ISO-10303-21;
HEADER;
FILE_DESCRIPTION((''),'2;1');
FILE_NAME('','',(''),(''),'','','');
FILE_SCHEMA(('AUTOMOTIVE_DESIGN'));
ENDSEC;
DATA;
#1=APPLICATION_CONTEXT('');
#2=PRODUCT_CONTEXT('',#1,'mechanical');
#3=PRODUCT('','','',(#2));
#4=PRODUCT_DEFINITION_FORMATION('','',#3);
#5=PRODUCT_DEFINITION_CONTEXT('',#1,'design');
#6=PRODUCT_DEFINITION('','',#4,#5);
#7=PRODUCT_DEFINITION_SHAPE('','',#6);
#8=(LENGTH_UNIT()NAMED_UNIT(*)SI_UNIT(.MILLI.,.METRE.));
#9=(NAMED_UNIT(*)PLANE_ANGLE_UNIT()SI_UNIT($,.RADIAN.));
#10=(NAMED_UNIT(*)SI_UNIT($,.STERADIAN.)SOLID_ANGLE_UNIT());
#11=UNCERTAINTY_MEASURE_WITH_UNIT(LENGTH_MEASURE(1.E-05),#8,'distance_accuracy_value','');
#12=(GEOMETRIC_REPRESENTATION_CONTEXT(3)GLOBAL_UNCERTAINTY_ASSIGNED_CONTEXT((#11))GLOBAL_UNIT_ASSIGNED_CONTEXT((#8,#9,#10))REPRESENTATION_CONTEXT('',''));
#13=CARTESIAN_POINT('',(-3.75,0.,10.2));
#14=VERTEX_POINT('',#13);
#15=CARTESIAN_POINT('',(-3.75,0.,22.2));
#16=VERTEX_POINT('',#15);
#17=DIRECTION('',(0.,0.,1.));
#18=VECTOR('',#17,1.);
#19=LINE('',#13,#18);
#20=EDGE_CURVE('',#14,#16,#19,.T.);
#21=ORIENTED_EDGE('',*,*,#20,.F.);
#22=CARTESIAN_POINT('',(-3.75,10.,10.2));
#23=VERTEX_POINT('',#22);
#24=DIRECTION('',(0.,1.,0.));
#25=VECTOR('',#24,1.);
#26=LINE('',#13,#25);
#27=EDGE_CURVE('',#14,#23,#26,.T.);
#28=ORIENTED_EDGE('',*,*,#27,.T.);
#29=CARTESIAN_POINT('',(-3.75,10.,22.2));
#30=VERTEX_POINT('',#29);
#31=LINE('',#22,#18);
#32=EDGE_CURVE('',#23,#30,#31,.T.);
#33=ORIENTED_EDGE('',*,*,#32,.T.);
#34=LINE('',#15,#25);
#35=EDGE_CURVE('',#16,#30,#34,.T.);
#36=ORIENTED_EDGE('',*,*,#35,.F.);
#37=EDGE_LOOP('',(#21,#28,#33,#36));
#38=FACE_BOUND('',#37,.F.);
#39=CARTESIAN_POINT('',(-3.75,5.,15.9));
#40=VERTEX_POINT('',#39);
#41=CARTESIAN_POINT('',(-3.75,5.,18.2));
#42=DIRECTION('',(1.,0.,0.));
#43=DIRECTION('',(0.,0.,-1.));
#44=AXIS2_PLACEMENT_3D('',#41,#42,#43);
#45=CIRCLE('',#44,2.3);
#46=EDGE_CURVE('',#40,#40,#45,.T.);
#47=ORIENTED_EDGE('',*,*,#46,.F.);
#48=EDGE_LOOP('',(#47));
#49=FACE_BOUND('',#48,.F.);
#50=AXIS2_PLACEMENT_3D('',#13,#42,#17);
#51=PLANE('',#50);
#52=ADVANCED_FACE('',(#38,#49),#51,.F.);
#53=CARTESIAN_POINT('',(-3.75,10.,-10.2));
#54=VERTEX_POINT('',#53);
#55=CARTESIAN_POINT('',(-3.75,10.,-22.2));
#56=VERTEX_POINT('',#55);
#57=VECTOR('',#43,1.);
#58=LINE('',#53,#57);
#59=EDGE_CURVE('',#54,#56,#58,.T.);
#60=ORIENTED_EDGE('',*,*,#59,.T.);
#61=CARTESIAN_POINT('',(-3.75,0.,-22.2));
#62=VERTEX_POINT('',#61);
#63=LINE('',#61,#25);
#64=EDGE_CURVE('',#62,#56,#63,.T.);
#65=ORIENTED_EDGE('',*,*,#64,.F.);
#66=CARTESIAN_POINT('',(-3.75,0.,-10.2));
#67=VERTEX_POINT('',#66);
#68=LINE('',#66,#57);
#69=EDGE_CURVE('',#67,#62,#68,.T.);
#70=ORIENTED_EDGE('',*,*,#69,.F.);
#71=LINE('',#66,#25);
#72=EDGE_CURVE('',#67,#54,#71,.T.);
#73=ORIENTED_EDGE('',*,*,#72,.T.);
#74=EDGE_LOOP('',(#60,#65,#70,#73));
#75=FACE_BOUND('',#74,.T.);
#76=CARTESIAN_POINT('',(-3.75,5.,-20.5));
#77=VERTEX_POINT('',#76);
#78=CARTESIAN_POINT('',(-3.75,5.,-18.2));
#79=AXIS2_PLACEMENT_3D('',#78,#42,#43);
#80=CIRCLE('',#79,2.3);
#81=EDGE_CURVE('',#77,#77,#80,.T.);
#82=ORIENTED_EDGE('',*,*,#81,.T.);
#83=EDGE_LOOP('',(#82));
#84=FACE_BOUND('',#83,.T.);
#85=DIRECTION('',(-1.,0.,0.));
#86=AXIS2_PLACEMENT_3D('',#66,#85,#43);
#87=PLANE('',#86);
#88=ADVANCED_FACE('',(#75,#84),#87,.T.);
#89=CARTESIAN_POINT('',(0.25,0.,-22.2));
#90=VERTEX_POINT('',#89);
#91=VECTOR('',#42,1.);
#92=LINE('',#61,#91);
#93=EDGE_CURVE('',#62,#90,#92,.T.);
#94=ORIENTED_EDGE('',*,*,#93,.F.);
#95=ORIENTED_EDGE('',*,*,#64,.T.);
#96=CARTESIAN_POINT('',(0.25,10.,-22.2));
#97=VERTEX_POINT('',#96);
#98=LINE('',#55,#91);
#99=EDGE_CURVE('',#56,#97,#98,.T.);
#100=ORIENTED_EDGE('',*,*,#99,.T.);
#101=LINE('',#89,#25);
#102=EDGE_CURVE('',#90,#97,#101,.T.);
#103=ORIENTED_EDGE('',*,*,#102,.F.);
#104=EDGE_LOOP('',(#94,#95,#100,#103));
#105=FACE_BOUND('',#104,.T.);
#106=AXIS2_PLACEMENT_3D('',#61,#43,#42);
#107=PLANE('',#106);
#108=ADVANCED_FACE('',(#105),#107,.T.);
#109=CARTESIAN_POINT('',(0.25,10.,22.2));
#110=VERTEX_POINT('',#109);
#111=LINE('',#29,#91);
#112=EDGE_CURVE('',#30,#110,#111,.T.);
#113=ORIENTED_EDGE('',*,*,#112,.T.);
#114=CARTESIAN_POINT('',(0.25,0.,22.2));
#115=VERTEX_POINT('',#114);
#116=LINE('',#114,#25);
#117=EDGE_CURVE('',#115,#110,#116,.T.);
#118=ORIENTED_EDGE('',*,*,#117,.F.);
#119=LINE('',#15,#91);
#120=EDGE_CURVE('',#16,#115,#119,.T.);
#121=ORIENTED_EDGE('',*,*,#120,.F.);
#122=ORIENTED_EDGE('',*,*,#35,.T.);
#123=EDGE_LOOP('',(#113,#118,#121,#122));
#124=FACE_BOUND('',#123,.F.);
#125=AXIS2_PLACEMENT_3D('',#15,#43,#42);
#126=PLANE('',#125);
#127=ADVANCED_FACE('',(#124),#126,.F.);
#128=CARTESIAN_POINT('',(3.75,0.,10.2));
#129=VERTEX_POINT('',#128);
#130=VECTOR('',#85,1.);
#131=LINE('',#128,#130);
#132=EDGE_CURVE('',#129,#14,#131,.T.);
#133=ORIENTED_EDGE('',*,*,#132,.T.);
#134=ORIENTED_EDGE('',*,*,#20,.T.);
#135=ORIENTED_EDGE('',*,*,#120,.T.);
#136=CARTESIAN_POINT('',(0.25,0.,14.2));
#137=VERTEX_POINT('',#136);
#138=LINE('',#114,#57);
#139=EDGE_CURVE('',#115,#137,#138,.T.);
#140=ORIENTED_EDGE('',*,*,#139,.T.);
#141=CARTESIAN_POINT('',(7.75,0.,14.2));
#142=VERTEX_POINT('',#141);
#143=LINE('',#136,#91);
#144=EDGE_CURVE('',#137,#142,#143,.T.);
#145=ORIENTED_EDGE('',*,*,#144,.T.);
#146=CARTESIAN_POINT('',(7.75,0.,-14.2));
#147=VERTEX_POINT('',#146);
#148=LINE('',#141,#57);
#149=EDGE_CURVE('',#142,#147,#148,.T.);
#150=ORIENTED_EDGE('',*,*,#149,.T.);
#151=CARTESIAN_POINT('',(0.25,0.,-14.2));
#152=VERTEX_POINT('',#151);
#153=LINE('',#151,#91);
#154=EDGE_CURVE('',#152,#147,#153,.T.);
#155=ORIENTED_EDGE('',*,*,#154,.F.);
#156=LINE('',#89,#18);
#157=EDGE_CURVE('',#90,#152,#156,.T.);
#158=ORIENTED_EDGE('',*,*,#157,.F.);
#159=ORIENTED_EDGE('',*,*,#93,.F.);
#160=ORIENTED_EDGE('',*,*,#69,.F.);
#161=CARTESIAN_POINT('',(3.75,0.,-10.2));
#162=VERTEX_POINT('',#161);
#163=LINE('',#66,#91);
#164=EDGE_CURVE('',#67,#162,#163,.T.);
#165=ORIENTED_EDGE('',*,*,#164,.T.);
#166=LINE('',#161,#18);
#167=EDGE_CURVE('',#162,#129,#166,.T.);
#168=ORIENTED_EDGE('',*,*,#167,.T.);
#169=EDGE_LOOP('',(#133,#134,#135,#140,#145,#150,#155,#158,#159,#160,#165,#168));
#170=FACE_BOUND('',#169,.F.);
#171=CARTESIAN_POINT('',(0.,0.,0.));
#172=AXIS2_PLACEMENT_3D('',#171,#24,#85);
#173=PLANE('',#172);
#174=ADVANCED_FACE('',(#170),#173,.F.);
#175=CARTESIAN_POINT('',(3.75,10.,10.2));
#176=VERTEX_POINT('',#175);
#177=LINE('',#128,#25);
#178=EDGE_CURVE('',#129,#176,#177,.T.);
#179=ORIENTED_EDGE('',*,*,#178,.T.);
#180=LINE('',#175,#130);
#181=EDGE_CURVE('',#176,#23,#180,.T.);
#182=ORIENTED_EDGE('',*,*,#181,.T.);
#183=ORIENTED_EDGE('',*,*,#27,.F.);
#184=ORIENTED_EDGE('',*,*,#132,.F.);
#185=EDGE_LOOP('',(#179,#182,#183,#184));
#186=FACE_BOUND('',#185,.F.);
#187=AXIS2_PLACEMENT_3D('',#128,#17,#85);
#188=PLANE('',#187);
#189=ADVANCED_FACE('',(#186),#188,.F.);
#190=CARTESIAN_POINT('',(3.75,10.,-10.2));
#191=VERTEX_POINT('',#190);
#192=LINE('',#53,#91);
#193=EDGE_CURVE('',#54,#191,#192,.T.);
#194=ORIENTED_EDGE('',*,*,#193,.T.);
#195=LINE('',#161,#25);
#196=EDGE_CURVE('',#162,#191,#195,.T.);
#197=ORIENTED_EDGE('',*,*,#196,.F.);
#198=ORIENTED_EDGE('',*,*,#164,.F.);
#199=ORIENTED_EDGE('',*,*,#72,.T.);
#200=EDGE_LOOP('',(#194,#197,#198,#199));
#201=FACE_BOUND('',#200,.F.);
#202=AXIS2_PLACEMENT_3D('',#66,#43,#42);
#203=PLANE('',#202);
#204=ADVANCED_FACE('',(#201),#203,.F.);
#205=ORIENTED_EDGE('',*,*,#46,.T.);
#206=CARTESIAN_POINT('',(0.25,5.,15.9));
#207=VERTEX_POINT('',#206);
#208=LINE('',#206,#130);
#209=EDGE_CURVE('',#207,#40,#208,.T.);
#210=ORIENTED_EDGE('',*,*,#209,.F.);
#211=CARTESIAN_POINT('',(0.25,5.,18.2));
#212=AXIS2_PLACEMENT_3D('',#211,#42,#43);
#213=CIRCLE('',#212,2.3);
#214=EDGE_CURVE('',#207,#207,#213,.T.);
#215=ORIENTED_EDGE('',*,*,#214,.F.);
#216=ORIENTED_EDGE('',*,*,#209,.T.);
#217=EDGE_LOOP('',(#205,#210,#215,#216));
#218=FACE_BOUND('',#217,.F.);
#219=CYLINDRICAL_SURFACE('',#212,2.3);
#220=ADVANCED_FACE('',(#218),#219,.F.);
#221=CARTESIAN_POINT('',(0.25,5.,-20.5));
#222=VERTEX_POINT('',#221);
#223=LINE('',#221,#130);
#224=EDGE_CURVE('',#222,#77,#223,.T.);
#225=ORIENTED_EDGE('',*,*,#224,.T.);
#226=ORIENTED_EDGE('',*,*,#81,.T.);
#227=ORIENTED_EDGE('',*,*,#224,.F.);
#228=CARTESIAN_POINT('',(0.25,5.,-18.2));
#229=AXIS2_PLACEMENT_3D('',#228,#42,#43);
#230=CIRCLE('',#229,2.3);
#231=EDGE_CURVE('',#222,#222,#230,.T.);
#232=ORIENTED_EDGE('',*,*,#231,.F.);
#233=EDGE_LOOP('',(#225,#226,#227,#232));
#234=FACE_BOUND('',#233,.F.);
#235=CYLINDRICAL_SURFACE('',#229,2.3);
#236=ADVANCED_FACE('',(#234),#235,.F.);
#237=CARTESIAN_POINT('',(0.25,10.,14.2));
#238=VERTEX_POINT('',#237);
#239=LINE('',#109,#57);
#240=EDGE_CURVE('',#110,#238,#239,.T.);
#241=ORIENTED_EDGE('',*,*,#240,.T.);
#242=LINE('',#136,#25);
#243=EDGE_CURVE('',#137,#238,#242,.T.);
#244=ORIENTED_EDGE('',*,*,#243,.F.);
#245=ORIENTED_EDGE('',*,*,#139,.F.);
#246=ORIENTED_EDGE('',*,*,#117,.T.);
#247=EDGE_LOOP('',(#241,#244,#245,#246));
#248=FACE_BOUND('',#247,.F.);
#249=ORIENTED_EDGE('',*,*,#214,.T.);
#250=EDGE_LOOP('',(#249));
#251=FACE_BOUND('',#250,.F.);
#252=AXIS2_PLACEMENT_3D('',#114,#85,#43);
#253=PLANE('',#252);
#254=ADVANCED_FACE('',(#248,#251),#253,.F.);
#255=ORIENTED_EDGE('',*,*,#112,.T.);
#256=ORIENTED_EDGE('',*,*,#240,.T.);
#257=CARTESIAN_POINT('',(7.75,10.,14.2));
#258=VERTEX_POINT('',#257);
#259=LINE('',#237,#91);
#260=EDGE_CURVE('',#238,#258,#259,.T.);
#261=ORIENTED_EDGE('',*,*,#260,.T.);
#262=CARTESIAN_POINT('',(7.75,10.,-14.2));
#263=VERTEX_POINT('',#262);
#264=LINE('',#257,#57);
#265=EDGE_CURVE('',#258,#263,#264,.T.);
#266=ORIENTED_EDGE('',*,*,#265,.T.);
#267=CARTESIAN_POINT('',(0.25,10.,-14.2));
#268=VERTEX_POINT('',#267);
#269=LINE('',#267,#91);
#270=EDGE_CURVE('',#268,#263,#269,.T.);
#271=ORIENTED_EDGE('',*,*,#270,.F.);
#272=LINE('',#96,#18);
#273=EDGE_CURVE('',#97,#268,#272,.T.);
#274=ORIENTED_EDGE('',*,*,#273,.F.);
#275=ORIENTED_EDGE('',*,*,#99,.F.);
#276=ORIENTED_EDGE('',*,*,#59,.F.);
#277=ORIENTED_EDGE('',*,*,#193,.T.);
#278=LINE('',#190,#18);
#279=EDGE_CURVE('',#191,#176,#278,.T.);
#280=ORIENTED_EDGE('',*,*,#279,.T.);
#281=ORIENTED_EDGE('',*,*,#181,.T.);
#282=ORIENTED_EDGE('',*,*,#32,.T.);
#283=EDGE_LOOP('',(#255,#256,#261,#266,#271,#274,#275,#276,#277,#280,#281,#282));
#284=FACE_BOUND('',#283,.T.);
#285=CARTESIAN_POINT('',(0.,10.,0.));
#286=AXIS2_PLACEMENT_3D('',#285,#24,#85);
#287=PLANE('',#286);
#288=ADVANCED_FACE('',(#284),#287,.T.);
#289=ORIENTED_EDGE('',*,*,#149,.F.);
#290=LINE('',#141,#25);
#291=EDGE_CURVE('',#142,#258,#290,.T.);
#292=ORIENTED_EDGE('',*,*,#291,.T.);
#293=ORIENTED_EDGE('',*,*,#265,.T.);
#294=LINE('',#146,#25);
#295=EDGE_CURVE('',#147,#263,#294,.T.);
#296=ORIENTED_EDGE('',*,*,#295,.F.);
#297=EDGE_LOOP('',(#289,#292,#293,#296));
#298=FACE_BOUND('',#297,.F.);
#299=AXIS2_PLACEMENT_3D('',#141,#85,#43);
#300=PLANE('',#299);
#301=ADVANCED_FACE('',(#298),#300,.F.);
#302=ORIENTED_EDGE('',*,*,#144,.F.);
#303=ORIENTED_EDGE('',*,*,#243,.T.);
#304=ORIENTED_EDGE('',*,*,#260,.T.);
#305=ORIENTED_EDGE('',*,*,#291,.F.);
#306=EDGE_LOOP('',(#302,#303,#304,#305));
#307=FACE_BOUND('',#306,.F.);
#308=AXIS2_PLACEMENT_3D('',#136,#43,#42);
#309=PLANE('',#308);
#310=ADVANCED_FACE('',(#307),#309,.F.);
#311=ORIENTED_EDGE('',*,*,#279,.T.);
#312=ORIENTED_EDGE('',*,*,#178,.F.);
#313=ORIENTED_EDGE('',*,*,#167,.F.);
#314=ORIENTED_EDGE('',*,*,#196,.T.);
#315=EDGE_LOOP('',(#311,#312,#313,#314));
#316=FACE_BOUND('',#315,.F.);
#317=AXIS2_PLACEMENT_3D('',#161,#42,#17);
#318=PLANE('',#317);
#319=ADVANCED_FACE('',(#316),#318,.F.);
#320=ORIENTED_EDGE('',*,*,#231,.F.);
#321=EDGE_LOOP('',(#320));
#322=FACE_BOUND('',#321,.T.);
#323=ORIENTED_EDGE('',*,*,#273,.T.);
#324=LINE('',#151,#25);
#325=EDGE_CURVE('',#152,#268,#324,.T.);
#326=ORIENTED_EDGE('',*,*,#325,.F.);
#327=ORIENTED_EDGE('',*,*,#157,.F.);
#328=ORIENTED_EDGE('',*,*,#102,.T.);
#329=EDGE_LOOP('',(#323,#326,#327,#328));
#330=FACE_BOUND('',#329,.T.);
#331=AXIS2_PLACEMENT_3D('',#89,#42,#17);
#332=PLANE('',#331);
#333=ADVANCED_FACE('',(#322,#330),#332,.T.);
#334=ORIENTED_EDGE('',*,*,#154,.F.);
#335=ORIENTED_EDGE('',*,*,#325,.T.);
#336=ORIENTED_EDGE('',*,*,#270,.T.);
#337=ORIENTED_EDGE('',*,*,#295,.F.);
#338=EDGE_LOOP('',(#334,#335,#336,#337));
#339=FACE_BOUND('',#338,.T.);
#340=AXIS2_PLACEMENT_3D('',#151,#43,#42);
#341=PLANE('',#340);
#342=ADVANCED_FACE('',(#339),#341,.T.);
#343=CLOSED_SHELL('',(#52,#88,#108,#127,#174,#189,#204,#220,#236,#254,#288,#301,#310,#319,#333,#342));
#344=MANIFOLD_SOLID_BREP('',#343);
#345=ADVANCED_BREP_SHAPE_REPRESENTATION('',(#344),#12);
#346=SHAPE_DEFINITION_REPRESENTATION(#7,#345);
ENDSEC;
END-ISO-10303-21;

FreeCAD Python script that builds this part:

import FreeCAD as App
import Part
import Sketcher
from FreeCAD import Vector


def add_polygon(sketch, points):
    """Adds a closed chain of lines whose ends are joined by coincident constraints."""
    first, n = sketch.GeometryCount, len(points)
    for a, b in zip(points, points[1:] + points[:1]):
        sketch.addGeometry(Part.LineSegment(App.Vector(*a, 0), App.Vector(*b, 0)), False)
    for i in range(n):
        sketch.addConstraint(Sketcher.Constraint("Coincident", first + i, 2, first + (i + 1) % n, 1))

doc = App.newDocument("Part")
body = doc.addObject("PartDesign::Body", "Body")

sketch1 = body.newObject("Sketcher::SketchObject", "Sketch")
sketch1.AttachmentSupport = (doc.getObject("XZ_Plane"), [""])
sketch1.MapMode = "FlatFace"
add_polygon(sketch1, [(3.75, -10.2), (3.75, 10.2), (-3.75, 10.2), (-3.75, 22.2), (0.25, 22.2), (0.25, 14.2), (7.75, 14.2), (7.75, -14.2), (0.25, -14.2), (0.25, -22.2), (-3.75, -22.2), (-3.75, -10.2)])
sketch1.addConstraint([
    Sketcher.Constraint("Vertical", 0),
    Sketcher.Constraint("Horizontal", 1),
    Sketcher.Constraint("Vertical", 2),
    Sketcher.Constraint("Horizontal", 3),
    Sketcher.Constraint("Vertical", 4),
    Sketcher.Constraint("Horizontal", 5),
    Sketcher.Constraint("Vertical", 6),
    Sketcher.Constraint("Horizontal", 7),
    Sketcher.Constraint("Vertical", 8),
    Sketcher.Constraint("Horizontal", 9),
    Sketcher.Constraint("Vertical", 10),
    Sketcher.Constraint("Horizontal", 11),
    Sketcher.Constraint("Symmetric", 0, 2, 10, 2, -1, 1),
    Sketcher.Constraint("Symmetric", 4, 2, 7, 2, -1),
    Sketcher.Constraint("Symmetric", 2, 2, 9, 2, -1),
    Sketcher.Constraint("Equal", 1, 5),
    Sketcher.Constraint("DistanceX", 3, 1, 3, 2, 4.0),
    Sketcher.Constraint("DistanceY", 2, 1, 2, 2, 12.0),
    Sketcher.Constraint("DistanceY", 4, 2, 4, 1, 8.0),
    Sketcher.Constraint("DistanceX", 1, 2, 1, 1, 7.5),
    Sketcher.Constraint("DistanceY", 0, 1, 0, 2, 20.4),
])
pad1 = body.newObject("PartDesign::Pad", "Pad")
pad1.Profile = sketch1
pad1.Length = 10
pad1.Reversed = True

sketch2 = body.newObject("Sketcher::SketchObject", "Sketch001")
sketch2.AttachmentSupport = (doc.getObject("YZ_Plane"), [""])
sketch2.MapMode = "FlatFace"
sketch2.AttachmentOffset = App.Placement(Vector(0, 0, 0.25), App.Rotation())
sketch2.addGeometry([
    Part.Circle(Vector(5, 18.2, 0), Vector(0, 0, 1), 2.3),
    Part.Circle(Vector(5, -18.2, 0), Vector(0, 0, 1), 2.3),
], False)
sketch2.addConstraint([
    Sketcher.Constraint("Equal", 0, 1),
    Sketcher.Constraint("Symmetric", 0, 3, 1, 3, -1),
    Sketcher.Constraint("Diameter", 0, 4.6),
    Sketcher.Constraint("DistanceX", -1, 1, 0, 3, 5.0),
    Sketcher.Constraint("DistanceY", -1, 1, 0, 3, 18.2),
])
pocket1 = body.newObject("PartDesign::Pocket", "Pocket")
pocket1.Profile = sketch2
pocket1.Type = "ThroughAll"

doc.recompute()
